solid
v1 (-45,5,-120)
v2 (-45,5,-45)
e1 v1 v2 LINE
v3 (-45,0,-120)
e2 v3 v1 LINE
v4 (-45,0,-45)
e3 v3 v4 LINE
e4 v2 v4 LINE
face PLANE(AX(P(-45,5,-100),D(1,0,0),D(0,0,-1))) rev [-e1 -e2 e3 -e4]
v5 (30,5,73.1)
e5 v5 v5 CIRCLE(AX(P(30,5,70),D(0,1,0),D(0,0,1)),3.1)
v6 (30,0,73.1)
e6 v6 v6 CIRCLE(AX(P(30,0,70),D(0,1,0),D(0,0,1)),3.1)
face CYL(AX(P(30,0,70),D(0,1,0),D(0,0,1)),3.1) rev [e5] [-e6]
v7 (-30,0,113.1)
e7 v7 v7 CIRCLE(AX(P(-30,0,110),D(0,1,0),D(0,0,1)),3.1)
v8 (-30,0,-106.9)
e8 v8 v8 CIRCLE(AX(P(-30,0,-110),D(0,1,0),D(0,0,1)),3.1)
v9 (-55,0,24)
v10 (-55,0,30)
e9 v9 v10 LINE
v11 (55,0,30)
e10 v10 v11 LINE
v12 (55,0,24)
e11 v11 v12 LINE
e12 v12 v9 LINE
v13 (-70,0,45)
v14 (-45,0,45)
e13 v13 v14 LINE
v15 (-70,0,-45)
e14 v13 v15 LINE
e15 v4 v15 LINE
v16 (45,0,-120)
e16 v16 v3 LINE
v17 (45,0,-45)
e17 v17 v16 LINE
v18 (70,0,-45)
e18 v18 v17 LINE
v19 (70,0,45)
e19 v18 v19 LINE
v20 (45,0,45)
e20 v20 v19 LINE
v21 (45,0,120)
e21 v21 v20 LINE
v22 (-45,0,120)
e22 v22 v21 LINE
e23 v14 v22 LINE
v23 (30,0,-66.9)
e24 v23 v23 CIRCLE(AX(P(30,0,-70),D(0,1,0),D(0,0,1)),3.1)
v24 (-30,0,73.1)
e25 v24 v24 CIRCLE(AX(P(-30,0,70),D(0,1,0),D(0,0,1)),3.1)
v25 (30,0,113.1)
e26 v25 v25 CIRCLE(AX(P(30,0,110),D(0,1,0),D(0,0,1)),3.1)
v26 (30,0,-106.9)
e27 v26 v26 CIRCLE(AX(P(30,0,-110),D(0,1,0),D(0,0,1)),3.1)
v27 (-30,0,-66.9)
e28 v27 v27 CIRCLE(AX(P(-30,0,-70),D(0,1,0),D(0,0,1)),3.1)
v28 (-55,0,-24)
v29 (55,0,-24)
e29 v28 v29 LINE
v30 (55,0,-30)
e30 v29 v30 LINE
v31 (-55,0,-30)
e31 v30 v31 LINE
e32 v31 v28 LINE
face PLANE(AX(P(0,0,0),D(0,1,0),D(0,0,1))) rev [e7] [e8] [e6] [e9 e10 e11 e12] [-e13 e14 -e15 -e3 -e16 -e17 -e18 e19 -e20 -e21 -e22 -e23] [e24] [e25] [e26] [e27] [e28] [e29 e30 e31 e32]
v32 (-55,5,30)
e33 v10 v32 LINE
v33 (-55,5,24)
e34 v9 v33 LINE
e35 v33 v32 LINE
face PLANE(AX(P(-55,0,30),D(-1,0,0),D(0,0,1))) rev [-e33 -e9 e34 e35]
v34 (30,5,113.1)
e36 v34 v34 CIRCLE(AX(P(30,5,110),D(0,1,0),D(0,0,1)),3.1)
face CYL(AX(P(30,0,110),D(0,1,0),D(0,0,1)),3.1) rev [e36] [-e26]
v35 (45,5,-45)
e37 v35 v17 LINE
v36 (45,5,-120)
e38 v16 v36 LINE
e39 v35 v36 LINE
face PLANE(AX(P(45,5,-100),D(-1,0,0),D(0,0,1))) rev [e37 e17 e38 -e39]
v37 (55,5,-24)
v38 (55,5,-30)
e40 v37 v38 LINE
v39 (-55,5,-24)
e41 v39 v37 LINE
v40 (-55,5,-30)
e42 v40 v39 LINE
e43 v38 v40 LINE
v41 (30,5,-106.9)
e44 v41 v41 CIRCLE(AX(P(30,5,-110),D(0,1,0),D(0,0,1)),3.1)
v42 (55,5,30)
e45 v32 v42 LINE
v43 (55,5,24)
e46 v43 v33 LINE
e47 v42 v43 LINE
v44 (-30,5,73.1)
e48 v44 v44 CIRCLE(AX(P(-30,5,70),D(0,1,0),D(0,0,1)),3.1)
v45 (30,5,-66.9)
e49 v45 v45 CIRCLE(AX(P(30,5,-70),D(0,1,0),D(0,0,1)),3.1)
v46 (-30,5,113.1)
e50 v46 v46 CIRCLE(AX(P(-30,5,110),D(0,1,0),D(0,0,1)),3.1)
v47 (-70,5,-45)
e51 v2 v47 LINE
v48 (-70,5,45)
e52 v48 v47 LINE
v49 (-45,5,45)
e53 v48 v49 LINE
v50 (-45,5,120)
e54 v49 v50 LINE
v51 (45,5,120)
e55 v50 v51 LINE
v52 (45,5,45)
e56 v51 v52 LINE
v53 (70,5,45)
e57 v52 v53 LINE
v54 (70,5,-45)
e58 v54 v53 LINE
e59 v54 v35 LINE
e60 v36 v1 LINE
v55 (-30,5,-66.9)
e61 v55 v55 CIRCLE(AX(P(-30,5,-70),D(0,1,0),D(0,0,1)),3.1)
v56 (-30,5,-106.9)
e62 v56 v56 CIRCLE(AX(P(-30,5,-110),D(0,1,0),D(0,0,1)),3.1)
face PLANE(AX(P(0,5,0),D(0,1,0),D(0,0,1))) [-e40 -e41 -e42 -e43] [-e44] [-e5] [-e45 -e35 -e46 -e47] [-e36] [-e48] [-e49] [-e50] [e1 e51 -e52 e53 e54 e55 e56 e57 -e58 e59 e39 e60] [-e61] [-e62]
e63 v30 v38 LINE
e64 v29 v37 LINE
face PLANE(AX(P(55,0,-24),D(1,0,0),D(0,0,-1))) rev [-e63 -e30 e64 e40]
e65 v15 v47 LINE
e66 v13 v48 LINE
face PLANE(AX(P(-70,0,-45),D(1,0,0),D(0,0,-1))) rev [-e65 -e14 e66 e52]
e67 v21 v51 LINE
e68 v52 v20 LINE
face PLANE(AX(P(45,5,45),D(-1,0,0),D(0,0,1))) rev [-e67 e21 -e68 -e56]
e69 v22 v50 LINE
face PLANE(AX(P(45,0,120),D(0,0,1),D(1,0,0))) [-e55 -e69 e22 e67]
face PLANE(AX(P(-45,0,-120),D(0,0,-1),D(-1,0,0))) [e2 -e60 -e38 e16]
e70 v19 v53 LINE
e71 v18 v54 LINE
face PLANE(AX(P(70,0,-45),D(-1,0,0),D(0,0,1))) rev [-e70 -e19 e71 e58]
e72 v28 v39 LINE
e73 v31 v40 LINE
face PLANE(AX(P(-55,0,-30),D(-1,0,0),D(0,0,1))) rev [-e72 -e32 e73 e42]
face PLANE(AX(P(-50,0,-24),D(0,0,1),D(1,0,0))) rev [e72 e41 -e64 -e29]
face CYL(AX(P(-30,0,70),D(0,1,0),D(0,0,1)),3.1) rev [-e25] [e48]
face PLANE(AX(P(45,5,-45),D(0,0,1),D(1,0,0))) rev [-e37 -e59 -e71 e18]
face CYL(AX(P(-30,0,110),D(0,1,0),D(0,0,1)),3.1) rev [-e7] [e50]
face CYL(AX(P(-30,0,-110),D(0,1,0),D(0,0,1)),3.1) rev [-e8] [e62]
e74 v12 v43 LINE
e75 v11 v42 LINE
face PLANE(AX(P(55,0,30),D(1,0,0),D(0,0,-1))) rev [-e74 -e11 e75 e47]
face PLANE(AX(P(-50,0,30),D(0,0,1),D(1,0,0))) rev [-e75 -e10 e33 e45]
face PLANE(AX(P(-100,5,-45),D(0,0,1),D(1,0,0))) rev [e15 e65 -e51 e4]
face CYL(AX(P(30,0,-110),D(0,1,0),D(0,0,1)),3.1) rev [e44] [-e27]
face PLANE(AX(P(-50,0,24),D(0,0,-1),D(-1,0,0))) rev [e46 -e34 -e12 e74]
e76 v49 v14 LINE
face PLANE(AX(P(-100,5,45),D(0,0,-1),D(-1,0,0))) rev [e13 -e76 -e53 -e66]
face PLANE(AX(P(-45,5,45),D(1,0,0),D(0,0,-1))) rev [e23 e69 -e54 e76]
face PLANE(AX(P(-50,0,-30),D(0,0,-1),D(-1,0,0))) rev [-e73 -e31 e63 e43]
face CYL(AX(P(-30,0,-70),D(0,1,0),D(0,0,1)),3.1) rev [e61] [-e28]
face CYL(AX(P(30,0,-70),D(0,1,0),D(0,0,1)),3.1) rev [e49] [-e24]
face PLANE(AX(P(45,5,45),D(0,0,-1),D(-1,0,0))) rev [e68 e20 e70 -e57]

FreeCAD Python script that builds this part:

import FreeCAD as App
import Part
import Sketcher
from FreeCAD import Vector
Q = App.Units.Quantity


def add_polygon(sketch, points):
    """Adds a closed chain of lines whose ends are joined by coincident constraints."""
    first, n = sketch.GeometryCount, len(points)
    for a, b in zip(points, points[1:] + points[:1]):
        sketch.addGeometry(Part.LineSegment(App.Vector(*a, 0), App.Vector(*b, 0)), False)
    for i in range(n):
        sketch.addConstraint(Sketcher.Constraint("Coincident", first + i, 2, first + (i + 1) % n, 1))

doc = App.newDocument("Part")
params = doc.addObject("Spreadsheet::Sheet", "Params")
for row, (alias, value) in enumerate([
    ("sketch1_width", "55 mm"),
    ("sketch1_width2", "90 mm"),
    ("pad1_length", "5 mm"),
    ("sketch2_width", "30 mm"),
    ("sketch2_height", "90 mm"),
    ("pocket1_length", "5 mm"),
    ("sketch3_width", "30 mm"),
    ("sketch3_height", "90 mm"),
    ("pocket2_length", "5 mm"),
    ("sketch4_width", "90 mm"),
    ("sketch4_height", "20 mm"),
    ("pad2_length", "5 mm"),
    ("sketch5_width", "90 mm"),
    ("sketch5_height", "20 mm"),
    ("pad3_length", "5 mm"),
    ("sketch6_diameter", "6.2 mm"),
    ("pocket3_length", "5 mm"),
    ("sketch7_diameter", "6.2 mm"),
    ("pocket4_length", "5 mm"),
    ("sketch8_diameter", "6.2 mm"),
    ("pocket5_length", "5 mm"),
    ("sketch9_diameter", "6.2 mm"),
    ("pocket6_length", "5 mm"),
    ("sketch10_width", "100 mm"),
    ("sketch10_height", "6 mm"),
    ("pocket7_length", "5 mm"),
    ("sketch11_width", "100 mm"),
    ("sketch11_height", "6 mm"),
    ("pocket8_length", "5 mm"),
    ("sketch12_width", "5 mm"),
    ("sketch12_height", "6 mm"),
    ("pocket9_length", "5 mm"),
    ("sketch13_width", "5 mm"),
    ("sketch13_height", "6 mm"),
    ("pocket10_length", "5 mm"),
    ("sketch14_width", "5 mm"),
    ("sketch14_height", "6 mm"),
    ("pocket11_length", "5 mm"),
    ("sketch15_width", "5 mm"),
    ("sketch15_height", "6 mm"),
    ("pocket12_length", "5 mm"),
], start=1):
    params.set(f"A{row}", alias)
    params.set(f"B{row}", "=" + value)
    params.setAlias(f"B{row}", alias)

body = doc.addObject("PartDesign::Body", "Body")

# Sketch on XZ plane
sketch1 = doc.addObject("Sketcher::SketchObject", "Sketch")
body.addObject(sketch1)
sketch1.AttachmentSupport = (doc.XZ_Plane, [""])
sketch1.MapMode = "FlatFace"
add_polygon(sketch1, [(100, -45), (45, -45), (45, -100), (-45, -100), (-45, -45), (-100, -45), (-100, 45), (-45, 45), (-45, 100), (45, 100), (45, 45), (100, 45)])  # lines 0-11
sketch1.addConstraint([
    Sketcher.Constraint("Horizontal", 0),
    Sketcher.Constraint("Vertical", 1),
    Sketcher.Constraint("Horizontal", 2),
    Sketcher.Constraint("Vertical", 3),
    Sketcher.Constraint("Horizontal", 4),
    Sketcher.Constraint("Vertical", 5),
    Sketcher.Constraint("Horizontal", 6),
    Sketcher.Constraint("Vertical", 7),
    Sketcher.Constraint("Horizontal", 8),
    Sketcher.Constraint("Vertical", 9),
    Sketcher.Constraint("Horizontal", 10),
    Sketcher.Constraint("Vertical", 11),
    Sketcher.Constraint("Symmetric", 0, 2, 6, 2, -1, 1),
    Sketcher.Constraint("Symmetric", 2, 2, 8, 2, -1, 1),
    Sketcher.Constraint("Symmetric", 4, 2, 10, 2, -1, 1),
    Sketcher.Constraint("Symmetric", 0, 2, 3, 2, -2),
    Sketcher.Constraint("Equal", 10, 1),
    Sketcher.Constraint("Equal", 8, 5),
    Sketcher.Constraint("DistanceX", 0, 2, 0, 1, Q("55 mm")),
    Sketcher.Constraint("DistanceX", 2, 2, 2, 1, Q("90 mm")),
])
sketch1.setExpression("Constraints[30]", "Params.sketch1_width")
sketch1.setExpression("Constraints[31]", "Params.sketch1_width2")
pad1 = doc.addObject("PartDesign::Pad", "Pad")
body.addObject(pad1)
pad1.Profile = sketch1
pad1.setExpression("Length", "Params.pad1_length")
pad1.Reversed = True

# Sketch on XZ plane
sketch2 = doc.addObject("Sketcher::SketchObject", "Sketch001")
body.addObject(sketch2)
sketch2.AttachmentSupport = (doc.XZ_Plane, [""])
sketch2.MapMode = "FlatFace"
sketch2.AttachmentOffset = App.Placement(Vector(0, 0, -5), App.Rotation())
add_polygon(sketch2, [(-100, -45), (-100, 45), (-70, 45), (-70, -45)])  # lines 0-3
sketch2.addConstraint([
    Sketcher.Constraint("Vertical", 0),
    Sketcher.Constraint("Horizontal", 1),
    Sketcher.Constraint("Vertical", 2),
    Sketcher.Constraint("Horizontal", 3),
    Sketcher.Constraint("DistanceX", 1, 1, 1, 2, Q("30 mm")),
    Sketcher.Constraint("DistanceY", 0, 1, 0, 2, Q("90 mm")),
    Sketcher.Constraint("DistanceX", 0, 2, -1, 1, Q("100 mm")),
    Sketcher.Constraint("DistanceY", -1, 1, 0, 2, Q("45 mm")),
])
sketch2.setExpression("Constraints[8]", "Params.sketch2_width")
sketch2.setExpression("Constraints[9]", "Params.sketch2_height")
pocket1 = doc.addObject("PartDesign::Pocket", "Pocket")
body.addObject(pocket1)
pocket1.Profile = sketch2
pocket1.setExpression("Length", "Params.pocket1_length")
pocket1.Reversed = True

# Sketch on XZ plane
sketch3 = doc.addObject("Sketcher::SketchObject", "Sketch002")
body.addObject(sketch3)
sketch3.AttachmentSupport = (doc.XZ_Plane, [""])
sketch3.MapMode = "FlatFace"
sketch3.AttachmentOffset = App.Placement(Vector(0, 0, -5), App.Rotation())
add_polygon(sketch3, [(70, -45), (70, 45), (100, 45), (100, -45)])  # lines 0-3
sketch3.addConstraint([
    Sketcher.Constraint("Vertical", 0),
    Sketcher.Constraint("Horizontal", 1),
    Sketcher.Constraint("Vertical", 2),
    Sketcher.Constraint("Horizontal", 3),
    Sketcher.Constraint("DistanceX", 1, 1, 1, 2, Q("30 mm")),
    Sketcher.Constraint("DistanceY", 0, 1, 0, 2, Q("90 mm")),
    Sketcher.Constraint("DistanceX", -1, 1, 0, 2, Q("70 mm")),
    Sketcher.Constraint("DistanceY", -1, 1, 0, 2, Q("45 mm")),
])
sketch3.setExpression("Constraints[8]", "Params.sketch3_width")
sketch3.setExpression("Constraints[9]", "Params.sketch3_height")
pocket2 = doc.addObject("PartDesign::Pocket", "Pocket001")
body.addObject(pocket2)
pocket2.Profile = sketch3
pocket2.setExpression("Length", "Params.pocket2_length")
pocket2.Reversed = True

# Sketch on XZ plane
sketch4 = doc.addObject("Sketcher::SketchObject", "Sketch003")
body.addObject(sketch4)
sketch4.AttachmentSupport = (doc.XZ_Plane, [""])
sketch4.MapMode = "FlatFace"
sketch4.AttachmentOffset = App.Placement(Vector(0, 0, -5), App.Rotation())
add_polygon(sketch4, [(-45, -120), (-45, -100), (45, -100), (45, -120)])  # lines 0-3
sketch4.addConstraint([
    Sketcher.Constraint("Vertical", 0),
    Sketcher.Constraint("Horizontal", 1),
    Sketcher.Constraint("Vertical", 2),
    Sketcher.Constraint("Horizontal", 3),
    Sketcher.Constraint("DistanceX", 1, 1, 1, 2, Q("90 mm")),
    Sketcher.Constraint("DistanceY", 0, 1, 0, 2, Q("20 mm")),
    Sketcher.Constraint("DistanceX", 0, 2, -1, 1, Q("45 mm")),
    Sketcher.Constraint("DistanceY", 0, 2, -1, 1, Q("100 mm")),
])
sketch4.setExpression("Constraints[8]", "Params.sketch4_width")
sketch4.setExpression("Constraints[9]", "Params.sketch4_height")
pad2 = doc.addObject("PartDesign::Pad", "Pad001")
body.addObject(pad2)
pad2.Profile = sketch4
pad2.setExpression("Length", "Params.pad2_length")

# Sketch on XZ plane
sketch5 = doc.addObject("Sketcher::SketchObject", "Sketch004")
body.addObject(sketch5)
sketch5.AttachmentSupport = (doc.XZ_Plane, [""])
sketch5.MapMode = "FlatFace"
sketch5.AttachmentOffset = App.Placement(Vector(0, 0, -5), App.Rotation())
add_polygon(sketch5, [(-45, 100), (-45, 120), (45, 120), (45, 100)])  # lines 0-3
sketch5.addConstraint([
    Sketcher.Constraint("Vertical", 0),
    Sketcher.Constraint("Horizontal", 1),
    Sketcher.Constraint("Vertical", 2),
    Sketcher.Constraint("Horizontal", 3),
    Sketcher.Constraint("DistanceX", 1, 1, 1, 2, Q("90 mm")),
    Sketcher.Constraint("DistanceY", 0, 1, 0, 2, Q("20 mm")),
    Sketcher.Constraint("DistanceX", 0, 2, -1, 1, Q("45 mm")),
    Sketcher.Constraint("DistanceY", -1, 1, 0, 2, Q("120 mm")),
])
sketch5.setExpression("Constraints[8]", "Params.sketch5_width")
sketch5.setExpression("Constraints[9]", "Params.sketch5_height")
pad3 = doc.addObject("PartDesign::Pad", "Pad002")
body.addObject(pad3)
pad3.Profile = sketch5
pad3.setExpression("Length", "Params.pad3_length")

# Sketch on XZ plane
sketch6 = doc.addObject("Sketcher::SketchObject", "Sketch005")
body.addObject(sketch6)
sketch6.AttachmentSupport = (doc.XZ_Plane, [""])
sketch6.MapMode = "FlatFace"
sketch6.AttachmentOffset = App.Placement(Vector(0, 0, -5), App.Rotation())
sketch6.addGeometry([
    Part.Circle(Vector(-30, -110, 0), Vector(0, 0, 1), 3.1),
    Part.Circle(Vector(-30, -70, 0), Vector(0, 0, 1), 3.1),
], False)
sketch6.addConstraint([
    Sketcher.Constraint("Equal", 0, 1),
    Sketcher.Constraint("Vertical", 0, 3, 1, 3),
    Sketcher.Constraint("Diameter", 0, Q("6.2 mm")),
    Sketcher.Constraint("DistanceX", 0, 3, -1, 1, Q("30 mm")),
    Sketcher.Constraint("DistanceY", 0, 3, -1, 1, Q("110 mm")),
    Sketcher.Constraint("DistanceY", 1, 3, -1, 1, Q("70 mm")),
])
sketch6.setExpression("Constraints[2]", "Params.sketch6_diameter")
pocket3 = doc.addObject("PartDesign::Pocket", "Pocket002")
body.addObject(pocket3)
pocket3.Profile = sketch6
pocket3.setExpression("Length", "Params.pocket3_length")
pocket3.Reversed = True

# Sketch on XZ plane
sketch7 = doc.addObject("Sketcher::SketchObject", "Sketch006")
body.addObject(sketch7)
sketch7.AttachmentSupport = (doc.XZ_Plane, [""])
sketch7.MapMode = "FlatFace"
sketch7.AttachmentOffset = App.Placement(Vector(0, 0, -5), App.Rotation())
sketch7.addGeometry([
    Part.Circle(Vector(30, -110, 0), Vector(0, 0, 1), 3.1),
    Part.Circle(Vector(30, -70, 0), Vector(0, 0, 1), 3.1),
], False)
sketch7.addConstraint([
    Sketcher.Constraint("Equal", 0, 1),
    Sketcher.Constraint("Vertical", 0, 3, 1, 3),
    Sketcher.Constraint("Diameter", 0, Q("6.2 mm")),
    Sketcher.Constraint("DistanceX", -1, 1, 0, 3, Q("30 mm")),
    Sketcher.Constraint("DistanceY", 0, 3, -1, 1, Q("110 mm")),
    Sketcher.Constraint("DistanceY", 1, 3, -1, 1, Q("70 mm")),
])
sketch7.setExpression("Constraints[2]", "Params.sketch7_diameter")
pocket4 = doc.addObject("PartDesign::Pocket", "Pocket003")
body.addObject(pocket4)
pocket4.Profile = sketch7
pocket4.setExpression("Length", "Params.pocket4_length")
pocket4.Reversed = True

# Sketch on XZ plane
sketch8 = doc.addObject("Sketcher::SketchObject", "Sketch007")
body.addObject(sketch8)
sketch8.AttachmentSupport = (doc.XZ_Plane, [""])
sketch8.MapMode = "FlatFace"
sketch8.AttachmentOffset = App.Placement(Vector(0, 0, -5), App.Rotation())
sketch8.addGeometry([
    Part.Circle(Vector(-30, 110, 0), Vector(0, 0, 1), 3.1),
    Part.Circle(Vector(-30, 70, 0), Vector(0, 0, 1), 3.1),
], False)
sketch8.addConstraint([
    Sketcher.Constraint("Equal", 0, 1),
    Sketcher.Constraint("Vertical", 0, 3, 1, 3),
    Sketcher.Constraint("Diameter", 0, Q("6.2 mm")),
    Sketcher.Constraint("DistanceX", 0, 3, -1, 1, Q("30 mm")),
    Sketcher.Constraint("DistanceY", -1, 1, 0, 3, Q("110 mm")),
    Sketcher.Constraint("DistanceY", -1, 1, 1, 3, Q("70 mm")),
])
sketch8.setExpression("Constraints[2]", "Params.sketch8_diameter")
pocket5 = doc.addObject("PartDesign::Pocket", "Pocket004")
body.addObject(pocket5)
pocket5.Profile = sketch8
pocket5.setExpression("Length", "Params.pocket5_length")
pocket5.Reversed = True

# Sketch on XZ plane
sketch9 = doc.addObject("Sketcher::SketchObject", "Sketch008")
body.addObject(sketch9)
sketch9.AttachmentSupport = (doc.XZ_Plane, [""])
sketch9.MapMode = "FlatFace"
sketch9.AttachmentOffset = App.Placement(Vector(0, 0, -5), App.Rotation())
sketch9.addGeometry([
    Part.Circle(Vector(30, 110, 0), Vector(0, 0, 1), 3.1),
    Part.Circle(Vector(30, 70, 0), Vector(0, 0, 1), 3.1),
], False)
sketch9.addConstraint([
    Sketcher.Constraint("Equal", 0, 1),
    Sketcher.Constraint("Vertical", 0, 3, 1, 3),
    Sketcher.Constraint("Diameter", 0, Q("6.2 mm")),
    Sketcher.Constraint("DistanceX", -1, 1, 0, 3, Q("30 mm")),
    Sketcher.Constraint("DistanceY", -1, 1, 0, 3, Q("110 mm")),
    Sketcher.Constraint("DistanceY", -1, 1, 1, 3, Q("70 mm")),
])
sketch9.setExpression("Constraints[2]", "Params.sketch9_diameter")
pocket6 = doc.addObject("PartDesign::Pocket", "Pocket005")
body.addObject(pocket6)
pocket6.Profile = sketch9
pocket6.setExpression("Length", "Params.pocket6_length")
pocket6.Reversed = True

# Sketch on XZ plane
sketch10 = doc.addObject("Sketcher::SketchObject", "Sketch009")
body.addObject(sketch10)
sketch10.AttachmentSupport = (doc.XZ_Plane, [""])
sketch10.MapMode = "FlatFace"
sketch10.AttachmentOffset = App.Placement(Vector(0, 0, -5), App.Rotation())
add_polygon(sketch10, [(-50, -30), (-50, -24), (50, -24), (50, -30)])  # lines 0-3
sketch10.addConstraint([
    Sketcher.Constraint("Vertical", 0),
    Sketcher.Constraint("Horizontal", 1),
    Sketcher.Constraint("Vertical", 2),
    Sketcher.Constraint("Horizontal", 3),
    Sketcher.Constraint("DistanceX", 1, 1, 1, 2, Q("100 mm")),
    Sketcher.Constraint("DistanceY", 0, 1, 0, 2, Q("6 mm")),
    Sketcher.Constraint("DistanceX", 0, 2, -1, 1, Q("50 mm")),
    Sketcher.Constraint("DistanceY", 0, 2, -1, 1, Q("24 mm")),
])
sketch10.setExpression("Constraints[8]", "Params.sketch10_width")
sketch10.setExpression("Constraints[9]", "Params.sketch10_height")
pocket7 = doc.addObject("PartDesign::Pocket", "Pocket006")
body.addObject(pocket7)
pocket7.Profile = sketch10
pocket7.setExpression("Length", "Params.pocket7_length")
pocket7.Reversed = True

# Sketch on XZ plane
sketch11 = doc.addObject("Sketcher::SketchObject", "Sketch010")
body.addObject(sketch11)
sketch11.AttachmentSupport = (doc.XZ_Plane, [""])
sketch11.MapMode = "FlatFace"
sketch11.AttachmentOffset = App.Placement(Vector(0, 0, -5), App.Rotation())
add_polygon(sketch11, [(-50, 24), (-50, 30), (50, 30), (50, 24)])  # lines 0-3
sketch11.addConstraint([
    Sketcher.Constraint("Vertical", 0),
    Sketcher.Constraint("Horizontal", 1),
    Sketcher.Constraint("Vertical", 2),
    Sketcher.Constraint("Horizontal", 3),
    Sketcher.Constraint("DistanceX", 1, 1, 1, 2, Q("100 mm")),
    Sketcher.Constraint("DistanceY", 0, 1, 0, 2, Q("6 mm")),
    Sketcher.Constraint("DistanceX", 0, 2, -1, 1, Q("50 mm")),
    Sketcher.Constraint("DistanceY", -1, 1, 0, 2, Q("30 mm")),
])
sketch11.setExpression("Constraints[8]", "Params.sketch11_width")
sketch11.setExpression("Constraints[9]", "Params.sketch11_height")
pocket8 = doc.addObject("PartDesign::Pocket", "Pocket007")
body.addObject(pocket8)
pocket8.Profile = sketch11
pocket8.setExpression("Length", "Params.pocket8_length")
pocket8.Reversed = True

# Sketch on XZ plane
sketch12 = doc.addObject("Sketcher::SketchObject", "Sketch011")
body.addObject(sketch12)
sketch12.AttachmentSupport = (doc.XZ_Plane, [""])
sketch12.MapMode = "FlatFace"
sketch12.AttachmentOffset = App.Placement(Vector(0, 0, -5), App.Rotation())
add_polygon(sketch12, [(50, -30), (50, -24), (55, -24), (55, -30)])  # lines 0-3
sketch12.addConstraint([
    Sketcher.Constraint("Vertical", 0),
    Sketcher.Constraint("Horizontal", 1),
    Sketcher.Constraint("Vertical", 2),
    Sketcher.Constraint("Horizontal", 3),
    Sketcher.Constraint("DistanceX", 1, 1, 1, 2, Q("5 mm")),
    Sketcher.Constraint("DistanceY", 0, 1, 0, 2, Q("6 mm")),
    Sketcher.Constraint("DistanceX", -1, 1, 0, 2, Q("50 mm")),
    Sketcher.Constraint("DistanceY", 0, 2, -1, 1, Q("24 mm")),
])
sketch12.setExpression("Constraints[8]", "Params.sketch12_width")
sketch12.setExpression("Constraints[9]", "Params.sketch12_height")
pocket9 = doc.addObject("PartDesign::Pocket", "Pocket008")
body.addObject(pocket9)
pocket9.Profile = sketch12
pocket9.setExpression("Length", "Params.pocket9_length")
pocket9.Reversed = True

# Sketch on XZ plane
sketch13 = doc.addObject("Sketcher::SketchObject", "Sketch012")
body.addObject(sketch13)
sketch13.AttachmentSupport = (doc.XZ_Plane, [""])
sketch13.MapMode = "FlatFace"
sketch13.AttachmentOffset = App.Placement(Vector(0, 0, -5), App.Rotation())
add_polygon(sketch13, [(50, 24), (50, 30), (55, 30), (55, 24)])  # lines 0-3
sketch13.addConstraint([
    Sketcher.Constraint("Vertical", 0),
    Sketcher.Constraint("Horizontal", 1),
    Sketcher.Constraint("Vertical", 2),
    Sketcher.Constraint("Horizontal", 3),
    Sketcher.Constraint("DistanceX", 1, 1, 1, 2, Q("5 mm")),
    Sketcher.Constraint("DistanceY", 0, 1, 0, 2, Q("6 mm")),
    Sketcher.Constraint("DistanceX", -1, 1, 0, 2, Q("50 mm")),
    Sketcher.Constraint("DistanceY", -1, 1, 0, 2, Q("30 mm")),
])
sketch13.setExpression("Constraints[8]", "Params.sketch13_width")
sketch13.setExpression("Constraints[9]", "Params.sketch13_height")
pocket10 = doc.addObject("PartDesign::Pocket", "Pocket009")
body.addObject(pocket10)
pocket10.Profile = sketch13
pocket10.setExpression("Length", "Params.pocket10_length")
pocket10.Reversed = True

# Sketch on XZ plane
sketch14 = doc.addObject("Sketcher::SketchObject", "Sketch013")
body.addObject(sketch14)
sketch14.AttachmentSupport = (doc.XZ_Plane, [""])
sketch14.MapMode = "FlatFace"
sketch14.AttachmentOffset = App.Placement(Vector(0, 0, -5), App.Rotation())
add_polygon(sketch14, [(-55, -30), (-55, -24), (-50, -24), (-50, -30)])  # lines 0-3
sketch14.addConstraint([
    Sketcher.Constraint("Vertical", 0),
    Sketcher.Constraint("Horizontal", 1),
    Sketcher.Constraint("Vertical", 2),
    Sketcher.Constraint("Horizontal", 3),
    Sketcher.Constraint("DistanceX", 1, 1, 1, 2, Q("5 mm")),
    Sketcher.Constraint("DistanceY", 0, 1, 0, 2, Q("6 mm")),
    Sketcher.Constraint("DistanceX", 0, 2, -1, 1, Q("55 mm")),
    Sketcher.Constraint("DistanceY", 0, 2, -1, 1, Q("24 mm")),
])
sketch14.setExpression("Constraints[8]", "Params.sketch14_width")
sketch14.setExpression("Constraints[9]", "Params.sketch14_height")
pocket11 = doc.addObject("PartDesign::Pocket", "Pocket010")
body.addObject(pocket11)
pocket11.Profile = sketch14
pocket11.setExpression("Length", "Params.pocket11_length")
pocket11.Reversed = True

# Sketch on XZ plane
sketch15 = doc.addObject("Sketcher::SketchObject", "Sketch014")
body.addObject(sketch15)
sketch15.AttachmentSupport = (doc.XZ_Plane, [""])
sketch15.MapMode = "FlatFace"
sketch15.AttachmentOffset = App.Placement(Vector(0, 0, -5), App.Rotation())
add_polygon(sketch15, [(-55, 24), (-55, 30), (-50, 30), (-50, 24)])  # lines 0-3
sketch15.addConstraint([
    Sketcher.Constraint("Vertical", 0),
    Sketcher.Constraint("Horizontal", 1),
    Sketcher.Constraint("Vertical", 2),
    Sketcher.Constraint("Horizontal", 3),
    Sketcher.Constraint("DistanceX", 1, 1, 1, 2, Q("5 mm")),
    Sketcher.Constraint("DistanceY", 0, 1, 0, 2, Q("6 mm")),
    Sketcher.Constraint("DistanceX", 0, 2, -1, 1, Q("55 mm")),
    Sketcher.Constraint("DistanceY", -1, 1, 0, 2, Q("30 mm")),
])
sketch15.setExpression("Constraints[8]", "Params.sketch15_width")
sketch15.setExpression("Constraints[9]", "Params.sketch15_height")
pocket12 = doc.addObject("PartDesign::Pocket", "Pocket011")
body.addObject(pocket12)
pocket12.Profile = sketch15
pocket12.setExpression("Length", "Params.pocket12_length")
pocket12.Reversed = True

doc.recompute()
